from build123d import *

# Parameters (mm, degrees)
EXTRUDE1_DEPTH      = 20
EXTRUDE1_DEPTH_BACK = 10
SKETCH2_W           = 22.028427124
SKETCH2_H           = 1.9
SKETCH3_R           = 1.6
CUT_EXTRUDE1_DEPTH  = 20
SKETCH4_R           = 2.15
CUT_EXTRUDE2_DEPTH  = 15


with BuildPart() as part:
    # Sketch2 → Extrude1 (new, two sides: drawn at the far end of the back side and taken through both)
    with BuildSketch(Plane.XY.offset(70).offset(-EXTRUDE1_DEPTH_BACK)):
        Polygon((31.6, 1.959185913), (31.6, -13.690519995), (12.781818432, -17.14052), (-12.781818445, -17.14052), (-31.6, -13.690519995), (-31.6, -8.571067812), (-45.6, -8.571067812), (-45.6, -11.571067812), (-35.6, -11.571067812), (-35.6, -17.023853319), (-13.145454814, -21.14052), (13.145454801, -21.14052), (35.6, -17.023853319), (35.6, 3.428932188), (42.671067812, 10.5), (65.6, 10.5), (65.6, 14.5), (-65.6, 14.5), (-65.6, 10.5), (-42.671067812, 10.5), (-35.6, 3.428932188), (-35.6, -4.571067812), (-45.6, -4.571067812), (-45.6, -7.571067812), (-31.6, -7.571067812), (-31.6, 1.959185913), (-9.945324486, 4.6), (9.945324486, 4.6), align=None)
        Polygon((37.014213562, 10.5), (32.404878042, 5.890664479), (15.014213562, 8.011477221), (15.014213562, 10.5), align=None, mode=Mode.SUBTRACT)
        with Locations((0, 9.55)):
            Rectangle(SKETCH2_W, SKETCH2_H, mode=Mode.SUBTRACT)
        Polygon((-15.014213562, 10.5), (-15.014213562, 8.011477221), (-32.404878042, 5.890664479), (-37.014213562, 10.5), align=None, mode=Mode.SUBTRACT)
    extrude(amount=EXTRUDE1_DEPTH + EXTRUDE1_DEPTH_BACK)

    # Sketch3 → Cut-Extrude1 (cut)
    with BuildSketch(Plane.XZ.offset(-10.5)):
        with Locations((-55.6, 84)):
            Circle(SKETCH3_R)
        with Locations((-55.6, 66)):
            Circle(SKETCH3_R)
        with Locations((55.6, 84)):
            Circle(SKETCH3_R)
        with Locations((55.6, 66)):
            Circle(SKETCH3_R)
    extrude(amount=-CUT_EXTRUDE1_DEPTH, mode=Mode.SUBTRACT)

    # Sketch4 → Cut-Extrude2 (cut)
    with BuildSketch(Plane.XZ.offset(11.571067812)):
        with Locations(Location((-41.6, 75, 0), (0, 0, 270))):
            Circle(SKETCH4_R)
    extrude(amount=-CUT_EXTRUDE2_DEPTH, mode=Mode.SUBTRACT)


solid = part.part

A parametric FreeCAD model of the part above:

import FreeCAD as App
import Part
import Sketcher

V = App.Vector
Q = App.Units.Quantity

doc = App.newDocument("Part")
params = doc.addObject("Spreadsheet::Sheet", "Params")
for row, (alias, value) in enumerate([
    ("sketch1_width", "14 mm"),
    ("sketch1_width2", "10 mm"),
    ("sketch1_width3", "22 mm"),
    ("sketch1_height", "3 mm"),
    ("sketch1_height2", "4 mm"),
    ("pad1_length", "20 mm"),
    ("pad1_length2", "10 mm"),
    ("sketch2_diameter", "3.2 mm"),
    ("pocket1_length", "20 mm"),
    ("sketch3_diameter", "4.3 mm"),
    ("pocket2_length", "15 mm"),
], start=1):
    params.set(f"A{row}", alias)
    params.set(f"B{row}", "=" + value)
    params.setAlias(f"B{row}", alias)

body = doc.addObject("PartDesign::Body", "Body")

sketch1 = body.newObject("Sketcher::SketchObject", "Sketch")
sketch1.AttachmentSupport = (doc.getObject("XY_Plane"), [""])
sketch1.MapMode = "FlatFace"
sketch1.AttachmentOffset = App.Placement(V(0, 0, 70), App.Rotation())
sketch1.addGeometry(Part.LineSegment(V(31.6, 1.959186, 0), V(31.6, -13.69052, 0)), False)
sketch1.addGeometry(Part.LineSegment(V(31.6, -13.69052, 0), V(12.781818, -17.14052, 0)), False)
sketch1.addGeometry(Part.LineSegment(V(12.781818, -17.14052, 0), V(-12.781818, -17.14052, 0)), False)
sketch1.addGeometry(Part.LineSegment(V(-12.781818, -17.14052, 0), V(-31.6, -13.69052, 0)), False)
sketch1.addGeometry(Part.LineSegment(V(-31.6, -13.69052, 0), V(-31.6, -8.571068, 0)), False)
sketch1.addGeometry(Part.LineSegment(V(-31.6, -8.571068, 0), V(-45.6, -8.571068, 0)), False)
sketch1.addGeometry(Part.LineSegment(V(-45.6, -8.571068, 0), V(-45.6, -11.571068, 0)), False)
sketch1.addGeometry(Part.LineSegment(V(-45.6, -11.571068, 0), V(-35.6, -11.571068, 0)), False)
sketch1.addGeometry(Part.LineSegment(V(-35.6, -11.571068, 0), V(-35.6, -17.023853, 0)), False)
sketch1.addGeometry(Part.LineSegment(V(-35.6, -17.023853, 0), V(-13.145455, -21.14052, 0)), False)
sketch1.addGeometry(Part.LineSegment(V(-13.145455, -21.14052, 0), V(13.145455, -21.14052, 0)), False)
sketch1.addGeometry(Part.LineSegment(V(13.145455, -21.14052, 0), V(35.6, -17.023853, 0)), False)
sketch1.addGeometry(Part.LineSegment(V(35.6, -17.023853, 0), V(35.6, 3.428932, 0)), False)
sketch1.addGeometry(Part.LineSegment(V(35.6, 3.428932, 0), V(42.671068, 10.5, 0)), False)
sketch1.addGeometry(Part.LineSegment(V(42.671068, 10.5, 0), V(65.6, 10.5, 0)), False)
sketch1.addGeometry(Part.LineSegment(V(65.6, 10.5, 0), V(65.6, 14.5, 0)), False)
sketch1.addGeometry(Part.LineSegment(V(65.6, 14.5, 0), V(-65.6, 14.5, 0)), False)
sketch1.addGeometry(Part.LineSegment(V(-65.6, 14.5, 0), V(-65.6, 10.5, 0)), False)
sketch1.addGeometry(Part.LineSegment(V(-65.6, 10.5, 0), V(-42.671068, 10.5, 0)), False)
sketch1.addGeometry(Part.LineSegment(V(-42.671068, 10.5, 0), V(-35.6, 3.428932, 0)), False)
sketch1.addGeometry(Part.LineSegment(V(-35.6, 3.428932, 0), V(-35.6, -4.571068, 0)), False)
sketch1.addGeometry(Part.LineSegment(V(-35.6, -4.571068, 0), V(-45.6, -4.571068, 0)), False)
sketch1.addGeometry(Part.LineSegment(V(-45.6, -4.571068, 0), V(-45.6, -7.571068, 0)), False)
sketch1.addGeometry(Part.LineSegment(V(-45.6, -7.571068, 0), V(-31.6, -7.571068, 0)), False)
sketch1.addGeometry(Part.LineSegment(V(-31.6, -7.571068, 0), V(-31.6, 1.959186, 0)), False)
sketch1.addGeometry(Part.LineSegment(V(-31.6, 1.959186, 0), V(-9.945324, 4.6, 0)), False)
sketch1.addGeometry(Part.LineSegment(V(-9.945324, 4.6, 0), V(9.945324, 4.6, 0)), False)
sketch1.addGeometry(Part.LineSegment(V(9.945324, 4.6, 0), V(31.6, 1.959186, 0)), False)
sketch1.addGeometry(Part.LineSegment(V(-37.014214, 10.5, 0), V(-15.014214, 10.5, 0)), False)
sketch1.addGeometry(Part.LineSegment(V(-15.014214, 10.5, 0), V(-15.014214, 8.011477, 0)), False)
sketch1.addGeometry(Part.LineSegment(V(-15.014214, 8.011477, 0), V(-32.404878, 5.890664, 0)), False)
sketch1.addGeometry(Part.LineSegment(V(-32.404878, 5.890664, 0), V(-37.014214, 10.5, 0)), False)
sketch1.addGeometry(Part.LineSegment(V(15.014214, 10.5, 0), V(37.014214, 10.5, 0)), False)
sketch1.addGeometry(Part.LineSegment(V(37.014214, 10.5, 0), V(32.404878, 5.890664, 0)), False)
sketch1.addGeometry(Part.LineSegment(V(32.404878, 5.890664, 0), V(15.014214, 8.011477, 0)), False)
sketch1.addGeometry(Part.LineSegment(V(15.014214, 8.011477, 0), V(15.014214, 10.5, 0)), False)
sketch1.addGeometry(Part.LineSegment(V(11.014214, 8.6, 0), V(-11.014214, 8.6, 0)), False)
sketch1.addGeometry(Part.LineSegment(V(-11.014214, 8.6, 0), V(-11.014214, 10.5, 0)), False)
sketch1.addGeometry(Part.LineSegment(V(-11.014214, 10.5, 0), V(11.014214, 10.5, 0)), False)
sketch1.addGeometry(Part.LineSegment(V(11.014214, 10.5, 0), V(11.014214, 8.6, 0)), False)
sketch1.addConstraint(Sketcher.Constraint("Coincident", 0, 2, 1, 1))
sketch1.addConstraint(Sketcher.Constraint("Coincident", 1, 2, 2, 1))
sketch1.addConstraint(Sketcher.Constraint("Coincident", 2, 2, 3, 1))
sketch1.addConstraint(Sketcher.Constraint("Coincident", 3, 2, 4, 1))
sketch1.addConstraint(Sketcher.Constraint("Coincident", 4, 2, 5, 1))
sketch1.addConstraint(Sketcher.Constraint("Coincident", 5, 2, 6, 1))
sketch1.addConstraint(Sketcher.Constraint("Coincident", 6, 2, 7, 1))
sketch1.addConstraint(Sketcher.Constraint("Coincident", 7, 2, 8, 1))
sketch1.addConstraint(Sketcher.Constraint("Coincident", 8, 2, 9, 1))
sketch1.addConstraint(Sketcher.Constraint("Coincident", 9, 2, 10, 1))
sketch1.addConstraint(Sketcher.Constraint("Coincident", 10, 2, 11, 1))
sketch1.addConstraint(Sketcher.Constraint("Coincident", 11, 2, 12, 1))
sketch1.addConstraint(Sketcher.Constraint("Coincident", 12, 2, 13, 1))
sketch1.addConstraint(Sketcher.Constraint("Coincident", 13, 2, 14, 1))
sketch1.addConstraint(Sketcher.Constraint("Coincident", 14, 2, 15, 1))
sketch1.addConstraint(Sketcher.Constraint("Coincident", 15, 2, 16, 1))
sketch1.addConstraint(Sketcher.Constraint("Coincident", 16, 2, 17, 1))
sketch1.addConstraint(Sketcher.Constraint("Coincident", 17, 2, 18, 1))
sketch1.addConstraint(Sketcher.Constraint("Coincident", 18, 2, 19, 1))
sketch1.addConstraint(Sketcher.Constraint("Coincident", 19, 2, 20, 1))
sketch1.addConstraint(Sketcher.Constraint("Coincident", 20, 2, 21, 1))
sketch1.addConstraint(Sketcher.Constraint("Coincident", 21, 2, 22, 1))
sketch1.addConstraint(Sketcher.Constraint("Coincident", 22, 2, 23, 1))
sketch1.addConstraint(Sketcher.Constraint("Coincident", 23, 2, 24, 1))
sketch1.addConstraint(Sketcher.Constraint("Coincident", 24, 2, 25, 1))
sketch1.addConstraint(Sketcher.Constraint("Coincident", 25, 2, 26, 1))
sketch1.addConstraint(Sketcher.Constraint("Coincident", 26, 2, 27, 1))
sketch1.addConstraint(Sketcher.Constraint("Coincident", 27, 2, 0, 1))
sketch1.addConstraint(Sketcher.Constraint("Coincident", 28, 2, 29, 1))
sketch1.addConstraint(Sketcher.Constraint("Coincident", 29, 2, 30, 1))
sketch1.addConstraint(Sketcher.Constraint("Coincident", 30, 2, 31, 1))
sketch1.addConstraint(Sketcher.Constraint("Coincident", 31, 2, 28, 1))
sketch1.addConstraint(Sketcher.Constraint("Coincident", 32, 2, 33, 1))
sketch1.addConstraint(Sketcher.Constraint("Coincident", 33, 2, 34, 1))
sketch1.addConstraint(Sketcher.Constraint("Coincident", 34, 2, 35, 1))
sketch1.addConstraint(Sketcher.Constraint("Coincident", 35, 2, 32, 1))
sketch1.addConstraint(Sketcher.Constraint("Coincident", 36, 2, 37, 1))
sketch1.addConstraint(Sketcher.Constraint("Coincident", 37, 2, 38, 1))
sketch1.addConstraint(Sketcher.Constraint("Coincident", 38, 2, 39, 1))
sketch1.addConstraint(Sketcher.Constraint("Coincident", 39, 2, 36, 1))
sketch1.addConstraint(Sketcher.Constraint("Vertical", 0))
sketch1.addConstraint(Sketcher.Constraint("Horizontal", 2))
sketch1.addConstraint(Sketcher.Constraint("Vertical", 4))
sketch1.addConstraint(Sketcher.Constraint("Horizontal", 5))
sketch1.addConstraint(Sketcher.Constraint("Vertical", 6))
sketch1.addConstraint(Sketcher.Constraint("Horizontal", 7))
sketch1.addConstraint(Sketcher.Constraint("Vertical", 8))
sketch1.addConstraint(Sketcher.Constraint("Horizontal", 10))
sketch1.addConstraint(Sketcher.Constraint("Vertical", 12))
sketch1.addConstraint(Sketcher.Constraint("Horizontal", 14))
sketch1.addConstraint(Sketcher.Constraint("Vertical", 15))
sketch1.addConstraint(Sketcher.Constraint("Horizontal", 16))
sketch1.addConstraint(Sketcher.Constraint("Vertical", 17))
sketch1.addConstraint(Sketcher.Constraint("Horizontal", 18))
sketch1.addConstraint(Sketcher.Constraint("Vertical", 20))
sketch1.addConstraint(Sketcher.Constraint("Horizontal", 21))
sketch1.addConstraint(Sketcher.Constraint("Vertical", 22))
sketch1.addConstraint(Sketcher.Constraint("Horizontal", 23))
sketch1.addConstraint(Sketcher.Constraint("Vertical", 24))
sketch1.addConstraint(Sketcher.Constraint("Horizontal", 26))
sketch1.addConstraint(Sketcher.Constraint("Horizontal", 28))
sketch1.addConstraint(Sketcher.Constraint("Vertical", 29))
sketch1.addConstraint(Sketcher.Constraint("Horizontal", 32))
sketch1.addConstraint(Sketcher.Constraint("Vertical", 35))
sketch1.addConstraint(Sketcher.Constraint("Horizontal", 36))
sketch1.addConstraint(Sketcher.Constraint("Vertical", 37))
sketch1.addConstraint(Sketcher.Constraint("Horizontal", 38))
sketch1.addConstraint(Sketcher.Constraint("Vertical", 39))
sketch1.addConstraint(Sketcher.Constraint("Symmetric", 0, 2, 3, 2, -2))
sketch1.addConstraint(Sketcher.Constraint("Symmetric", 8, 2, 11, 2, -2))
sketch1.addConstraint(Sketcher.Constraint("Symmetric", 14, 2, 17, 2, -2))
sketch1.addConstraint(Sketcher.Constraint("Symmetric", 12, 2, 19, 2, -2))
sketch1.addConstraint(Sketcher.Constraint("Symmetric", 24, 2, 27, 2, -2))
sketch1.addConstraint(Sketcher.Constraint("Symmetric", 31, 2, 32, 2, -2))
sketch1.addConstraint(Sketcher.Constraint("Symmetric", 30, 2, 33, 2, -2))
sketch1.addConstraint(Sketcher.Constraint("Symmetric", 29, 2, 34, 2, -2))
sketch1.addConstraint(Sketcher.Constraint("Parallel", 3, 9))
sketch1.addConstraint(Sketcher.Constraint("Parallel", 1, 11))
sketch1.addConstraint(Sketcher.Constraint("Perpendicular", 13, 19))
sketch1.addConstraint(Sketcher.Constraint("Parallel", 25, 30))
sketch1.addConstraint(Sketcher.Constraint("Parallel", 19, 31))
sketch1.addConstraint(Sketcher.Constraint("Perpendicular", 31, 33))
sketch1.addConstraint(Sketcher.Constraint("Parallel", 27, 34))
sketch1.addConstraint(Sketcher.Constraint("Horizontal", 18, 2, 28, 2))
sketch1.addConstraint(Sketcher.Constraint("Horizontal", 35, 2, 37, 2))
sketch1.addConstraint(Sketcher.Constraint("Vertical", 6, 2, 21, 2))
sketch1.addConstraint(Sketcher.Constraint("Equal", 6, 22))
sketch1.addConstraint(Sketcher.Constraint("Equal", 1, 3))
sketch1.addConstraint(Sketcher.Constraint("DistanceX", 5, 2, 5, 1, Q("14 mm")))
sketch1.addConstraint(Sketcher.Constraint("DistanceX", 7, 1, 7, 2, Q("10 mm")))
sketch1.addConstraint(Sketcher.Constraint("DistanceX", 28, 1, 28, 2, Q("22 mm")))
sketch1.addConstraint(Sketcher.Constraint("DistanceY", 6, 2, 6, 1, Q("3 mm")))
sketch1.addConstraint(Sketcher.Constraint("DistanceY", 15, 1, 15, 2, Q("4 mm")))
sketch1.addConstraint(Sketcher.Constraint("DistanceY", 20, 2, 20, 1, Q("8 mm")))
sketch1.addConstraint(Sketcher.Constraint("Distance", 13, Q("10 mm")))
sketch1.addConstraint(Sketcher.Constraint("DistanceX", 16, 2, 16, 1, Q("131.2 mm")))
sketch1.addConstraint(Sketcher.Constraint("DistanceY", 37, 1, 37, 2, Q("1.9 mm")))
sketch1.addConstraint(Sketcher.Constraint("DistanceY", 9, 2, 2, 2, Q("4 mm")))
sketch1.addConstraint(Sketcher.Constraint("DistanceX", 12, 2, 14, 2, Q("30 mm")))
sketch1.addConstraint(Sketcher.Constraint("DistanceY", 4, 2, 19, 2, Q("12 mm")))
sketch1.addConstraint(Sketcher.Constraint("DistanceX", 29, 2, 36, 2, Q("4 mm")))
sketch1.addConstraint(Sketcher.Constraint("DistanceY", 25, 2, 36, 2, Q("4 mm")))
sketch1.addConstraint(Sketcher.Constraint("DistanceX", 38, 2, 35, 2, Q("4 mm")))
sketch1.addConstraint(Sketcher.Constraint("DistanceY", -1, 1, 13, 2, Q("10.5 mm")))
sketch1.addConstraint(Sketcher.Constraint("DistanceY", 1, 2, 0, 2, Q("3.45 mm")))
sketch1.addConstraint(Sketcher.Constraint("DistanceX", 10, 1, 10, 2, Q("26.29091 mm")))
sketch1.addConstraint(Sketcher.Constraint("DistanceX", 26, 1, 26, 2, Q("19.890649 mm")))
sketch1.addConstraint(Sketcher.Constraint("DistanceX", 2, 2, 2, 1, Q("25.563637 mm")))
sketch1.addConstraint(Sketcher.Constraint("DistanceX", 36, 2, 36, 1, Q("22.028427 mm")))
sketch1.addConstraint(Sketcher.Constraint("DistanceY", 0, 2, 0, 1, Q("15.649706 mm")))
sketch1.addConstraint(Sketcher.Constraint("DistanceY", 4, 1, 4, 2, Q("5.119452 mm")))
sketch1.addConstraint(Sketcher.Constraint("DistanceY", 29, 2, 29, 1, Q("2.488523 mm")))
sketch1.setExpression("Constraints[88]", "Params.sketch1_width")
sketch1.setExpression("Constraints[89]", "Params.sketch1_width2")
sketch1.setExpression("Constraints[90]", "Params.sketch1_width3")
sketch1.setExpression("Constraints[91]", "Params.sketch1_height")
sketch1.setExpression("Constraints[92]", "Params.sketch1_height2")
pad1 = body.newObject("PartDesign::Pad", "Pad")
pad1.Profile = sketch1
pad1.Type = "TwoLengths"
pad1.setExpression("Length", "Params.pad1_length")
pad1.setExpression("Length2", "Params.pad1_length2")

sketch2 = body.newObject("Sketcher::SketchObject", "Sketch001")
sketch2.AttachmentSupport = (doc.getObject("XZ_Plane"), [""])
sketch2.MapMode = "FlatFace"
sketch2.AttachmentOffset = App.Placement(V(0, 0, -10.5), App.Rotation())
sketch2.addGeometry(Part.Circle(V(-55.6, 84, 0), V(0, 0, 1), 1.6), False)
sketch2.addGeometry(Part.Circle(V(-55.6, 66, 0), V(0, 0, 1), 1.6), False)
sketch2.addGeometry(Part.Circle(V(55.6, 84, 0), V(0, 0, 1), 1.6), False)
sketch2.addGeometry(Part.Circle(V(55.6, 66, 0), V(0, 0, 1), 1.6), False)
sketch2.addConstraint(Sketcher.Constraint("Equal", 0, 1))
sketch2.addConstraint(Sketcher.Constraint("Equal", 1, 2))
sketch2.addConstraint(Sketcher.Constraint("Equal", 2, 3))
sketch2.addConstraint(Sketcher.Constraint("Symmetric", 0, 3, 2, 3, -2))
sketch2.addConstraint(Sketcher.Constraint("Symmetric", 1, 3, 3, 3, -2))
sketch2.addConstraint(Sketcher.Constraint("Vertical", 0, 3, 1, 3))
sketch2.addConstraint(Sketcher.Constraint("Diameter", 0, Q("3.2 mm")))
sketch2.addConstraint(Sketcher.Constraint("DistanceY", -1, 1, 0, 3, Q("84 mm")))
sketch2.addConstraint(Sketcher.Constraint("DistanceY", -1, 1, 1, 3, Q("66 mm")))
sketch2.addConstraint(Sketcher.Constraint("DistanceX", 0, 3, -1, 1, Q("55.6 mm")))
sketch2.setExpression("Constraints[6]", "Params.sketch2_diameter")
pocket1 = body.newObject("PartDesign::Pocket", "Pocket")
pocket1.Profile = sketch2
pocket1.setExpression("Length", "Params.pocket1_length")

sketch3 = body.newObject("Sketcher::SketchObject", "Sketch002")
sketch3.AttachmentSupport = (doc.getObject("XZ_Plane"), [""])
sketch3.MapMode = "FlatFace"
sketch3.AttachmentOffset = App.Placement(V(0, 0, 11.571068), App.Rotation())
sketch3.addGeometry(Part.Circle(V(-41.6, 75, 0), V(0, 0, 1), 2.15), False)
sketch3.addConstraint(Sketcher.Constraint("Diameter", 0, Q("4.3 mm")))
sketch3.addConstraint(Sketcher.Constraint("DistanceY", -1, 1, 0, 3, Q("75 mm")))
sketch3.addConstraint(Sketcher.Constraint("DistanceX", 0, 3, -1, 1, Q("41.6 mm")))
sketch3.setExpression("Constraints[0]", "Params.sketch3_diameter")
pocket2 = body.newObject("PartDesign::Pocket", "Pocket001")
pocket2.Profile = sketch3
pocket2.setExpression("Length", "Params.pocket2_length")

doc.recompute()
